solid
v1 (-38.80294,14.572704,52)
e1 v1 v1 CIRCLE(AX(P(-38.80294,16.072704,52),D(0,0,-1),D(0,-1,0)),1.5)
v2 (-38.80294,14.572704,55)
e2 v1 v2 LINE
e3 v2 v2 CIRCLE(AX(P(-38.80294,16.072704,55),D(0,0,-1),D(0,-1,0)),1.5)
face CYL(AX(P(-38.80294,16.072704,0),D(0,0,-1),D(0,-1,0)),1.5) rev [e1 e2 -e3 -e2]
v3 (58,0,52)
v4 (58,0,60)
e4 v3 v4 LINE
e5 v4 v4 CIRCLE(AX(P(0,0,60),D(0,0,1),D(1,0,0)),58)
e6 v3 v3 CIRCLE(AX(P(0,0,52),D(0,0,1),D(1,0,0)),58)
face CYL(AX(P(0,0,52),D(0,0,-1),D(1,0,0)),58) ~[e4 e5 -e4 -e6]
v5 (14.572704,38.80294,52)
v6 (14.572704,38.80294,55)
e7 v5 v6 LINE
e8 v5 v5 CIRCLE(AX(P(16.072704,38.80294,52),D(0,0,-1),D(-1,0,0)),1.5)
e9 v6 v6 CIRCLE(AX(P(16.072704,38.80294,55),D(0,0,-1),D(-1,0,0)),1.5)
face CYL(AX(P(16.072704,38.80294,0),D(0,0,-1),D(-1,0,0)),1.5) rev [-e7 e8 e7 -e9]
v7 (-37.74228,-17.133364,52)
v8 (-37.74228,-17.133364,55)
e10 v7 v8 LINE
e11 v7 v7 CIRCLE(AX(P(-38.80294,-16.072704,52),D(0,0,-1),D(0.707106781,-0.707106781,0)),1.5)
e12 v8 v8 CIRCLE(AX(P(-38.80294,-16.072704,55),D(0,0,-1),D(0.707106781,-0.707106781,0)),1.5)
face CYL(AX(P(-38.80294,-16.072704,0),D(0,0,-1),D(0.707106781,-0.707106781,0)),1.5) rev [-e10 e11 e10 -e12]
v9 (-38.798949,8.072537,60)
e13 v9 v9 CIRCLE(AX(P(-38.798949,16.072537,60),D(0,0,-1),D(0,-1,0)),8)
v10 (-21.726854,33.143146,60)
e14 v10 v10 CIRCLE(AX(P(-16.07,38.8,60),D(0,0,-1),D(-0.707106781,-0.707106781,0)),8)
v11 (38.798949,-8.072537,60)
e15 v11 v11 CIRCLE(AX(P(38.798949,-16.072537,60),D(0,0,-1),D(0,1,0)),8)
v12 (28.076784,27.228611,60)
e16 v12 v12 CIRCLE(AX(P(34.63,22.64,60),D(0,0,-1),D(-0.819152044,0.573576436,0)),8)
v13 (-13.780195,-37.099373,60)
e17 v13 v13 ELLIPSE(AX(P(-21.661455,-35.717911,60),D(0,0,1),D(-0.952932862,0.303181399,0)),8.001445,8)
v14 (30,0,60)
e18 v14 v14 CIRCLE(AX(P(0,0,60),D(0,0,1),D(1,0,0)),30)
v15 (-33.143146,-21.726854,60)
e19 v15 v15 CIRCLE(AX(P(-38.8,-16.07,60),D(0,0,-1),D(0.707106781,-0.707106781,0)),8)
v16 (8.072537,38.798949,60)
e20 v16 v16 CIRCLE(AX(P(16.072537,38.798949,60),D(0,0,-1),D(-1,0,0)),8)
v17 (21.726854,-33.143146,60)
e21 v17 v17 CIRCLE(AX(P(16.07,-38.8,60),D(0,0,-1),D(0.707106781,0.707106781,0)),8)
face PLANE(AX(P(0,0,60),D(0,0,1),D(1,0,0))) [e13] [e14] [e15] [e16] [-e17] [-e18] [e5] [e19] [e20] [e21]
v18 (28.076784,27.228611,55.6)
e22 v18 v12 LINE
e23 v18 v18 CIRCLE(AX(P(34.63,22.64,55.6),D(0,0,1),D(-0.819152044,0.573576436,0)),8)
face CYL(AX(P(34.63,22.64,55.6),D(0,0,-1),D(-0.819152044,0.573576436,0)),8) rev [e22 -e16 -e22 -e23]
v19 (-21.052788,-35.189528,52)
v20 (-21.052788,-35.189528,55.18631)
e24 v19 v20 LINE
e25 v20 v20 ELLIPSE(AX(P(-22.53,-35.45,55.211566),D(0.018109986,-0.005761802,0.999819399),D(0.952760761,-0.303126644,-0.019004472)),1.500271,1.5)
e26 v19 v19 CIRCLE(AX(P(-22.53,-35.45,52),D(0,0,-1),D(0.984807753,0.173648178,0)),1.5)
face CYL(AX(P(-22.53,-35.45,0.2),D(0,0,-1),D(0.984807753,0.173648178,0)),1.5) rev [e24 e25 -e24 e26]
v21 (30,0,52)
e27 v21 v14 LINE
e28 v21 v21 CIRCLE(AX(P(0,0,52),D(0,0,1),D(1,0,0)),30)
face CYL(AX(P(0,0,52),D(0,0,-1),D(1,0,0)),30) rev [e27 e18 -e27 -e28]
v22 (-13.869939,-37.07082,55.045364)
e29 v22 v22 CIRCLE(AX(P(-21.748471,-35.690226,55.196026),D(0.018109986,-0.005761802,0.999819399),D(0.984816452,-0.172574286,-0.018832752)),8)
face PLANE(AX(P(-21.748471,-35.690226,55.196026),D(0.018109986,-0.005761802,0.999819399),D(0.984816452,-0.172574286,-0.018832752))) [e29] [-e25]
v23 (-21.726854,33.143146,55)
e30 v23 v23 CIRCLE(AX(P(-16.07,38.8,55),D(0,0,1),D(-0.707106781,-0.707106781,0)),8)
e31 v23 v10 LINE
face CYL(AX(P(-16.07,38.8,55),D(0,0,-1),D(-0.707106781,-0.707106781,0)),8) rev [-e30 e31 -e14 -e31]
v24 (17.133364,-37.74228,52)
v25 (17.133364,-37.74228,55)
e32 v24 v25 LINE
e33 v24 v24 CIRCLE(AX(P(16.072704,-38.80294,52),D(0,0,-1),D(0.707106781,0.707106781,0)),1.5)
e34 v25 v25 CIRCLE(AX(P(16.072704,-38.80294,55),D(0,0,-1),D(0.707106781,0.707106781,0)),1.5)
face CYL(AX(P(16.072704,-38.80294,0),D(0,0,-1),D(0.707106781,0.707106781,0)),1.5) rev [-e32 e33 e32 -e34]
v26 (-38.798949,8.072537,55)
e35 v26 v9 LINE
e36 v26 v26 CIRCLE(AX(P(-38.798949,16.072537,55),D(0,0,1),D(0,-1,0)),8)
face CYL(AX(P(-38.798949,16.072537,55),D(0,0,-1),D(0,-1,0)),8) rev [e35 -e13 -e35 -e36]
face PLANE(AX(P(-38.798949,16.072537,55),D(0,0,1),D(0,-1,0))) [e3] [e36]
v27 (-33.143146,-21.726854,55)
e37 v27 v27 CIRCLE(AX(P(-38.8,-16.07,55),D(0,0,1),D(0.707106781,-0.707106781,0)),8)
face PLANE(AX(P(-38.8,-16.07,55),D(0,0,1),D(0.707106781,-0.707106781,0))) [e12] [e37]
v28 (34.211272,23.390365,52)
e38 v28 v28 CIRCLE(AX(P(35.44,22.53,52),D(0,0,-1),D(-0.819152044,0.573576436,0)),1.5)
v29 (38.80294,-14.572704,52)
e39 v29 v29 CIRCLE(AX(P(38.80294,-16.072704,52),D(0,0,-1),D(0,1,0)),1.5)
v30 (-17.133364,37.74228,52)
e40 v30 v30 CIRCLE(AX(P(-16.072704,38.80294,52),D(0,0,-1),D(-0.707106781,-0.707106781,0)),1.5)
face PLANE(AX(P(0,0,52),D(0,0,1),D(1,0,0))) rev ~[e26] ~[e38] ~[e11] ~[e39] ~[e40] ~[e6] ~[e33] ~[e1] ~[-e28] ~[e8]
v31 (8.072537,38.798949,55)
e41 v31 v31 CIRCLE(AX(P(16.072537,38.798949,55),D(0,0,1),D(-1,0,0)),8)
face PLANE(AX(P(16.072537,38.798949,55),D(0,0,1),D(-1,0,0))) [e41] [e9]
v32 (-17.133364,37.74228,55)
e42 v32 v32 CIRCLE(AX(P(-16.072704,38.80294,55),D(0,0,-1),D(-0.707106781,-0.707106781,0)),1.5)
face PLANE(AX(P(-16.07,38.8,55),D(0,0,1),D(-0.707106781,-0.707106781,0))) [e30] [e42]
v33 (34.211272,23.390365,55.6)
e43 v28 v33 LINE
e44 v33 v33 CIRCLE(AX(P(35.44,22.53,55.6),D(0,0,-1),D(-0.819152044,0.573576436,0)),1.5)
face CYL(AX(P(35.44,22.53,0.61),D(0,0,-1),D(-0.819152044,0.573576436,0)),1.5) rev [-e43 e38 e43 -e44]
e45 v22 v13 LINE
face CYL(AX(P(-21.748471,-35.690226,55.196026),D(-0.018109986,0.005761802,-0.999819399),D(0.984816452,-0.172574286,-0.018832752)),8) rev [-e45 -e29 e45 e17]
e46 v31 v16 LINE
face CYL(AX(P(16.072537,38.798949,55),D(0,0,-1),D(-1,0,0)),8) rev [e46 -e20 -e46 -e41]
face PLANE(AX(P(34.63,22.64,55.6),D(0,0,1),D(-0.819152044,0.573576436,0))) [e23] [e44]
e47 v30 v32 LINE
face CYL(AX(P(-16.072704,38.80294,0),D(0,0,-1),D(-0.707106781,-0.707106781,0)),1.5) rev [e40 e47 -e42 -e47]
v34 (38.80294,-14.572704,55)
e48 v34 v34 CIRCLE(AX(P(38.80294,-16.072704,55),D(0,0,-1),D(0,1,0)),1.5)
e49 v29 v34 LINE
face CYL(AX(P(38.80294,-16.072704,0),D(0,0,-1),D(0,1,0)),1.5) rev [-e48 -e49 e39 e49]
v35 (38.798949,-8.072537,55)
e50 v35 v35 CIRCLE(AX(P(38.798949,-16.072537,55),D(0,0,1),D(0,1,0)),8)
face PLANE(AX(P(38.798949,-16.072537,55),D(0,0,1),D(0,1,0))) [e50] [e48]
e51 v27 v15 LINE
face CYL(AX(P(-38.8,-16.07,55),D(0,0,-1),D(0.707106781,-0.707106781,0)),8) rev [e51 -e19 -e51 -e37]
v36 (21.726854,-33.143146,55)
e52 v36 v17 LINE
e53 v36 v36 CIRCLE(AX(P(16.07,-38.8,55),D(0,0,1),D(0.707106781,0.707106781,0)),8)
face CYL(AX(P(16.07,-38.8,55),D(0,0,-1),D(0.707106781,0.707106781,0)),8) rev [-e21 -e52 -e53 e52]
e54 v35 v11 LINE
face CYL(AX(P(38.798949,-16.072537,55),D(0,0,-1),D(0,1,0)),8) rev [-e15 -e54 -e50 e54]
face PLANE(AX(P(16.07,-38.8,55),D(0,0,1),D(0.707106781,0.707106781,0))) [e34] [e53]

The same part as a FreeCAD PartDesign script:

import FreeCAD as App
import Part
import Sketcher

V = App.Vector

doc = App.newDocument("Part")
params = doc.addObject("Spreadsheet::Sheet", "Params")
for row, (alias, value) in enumerate([
    ("sketch1_diameter", "3 mm"),
    ("pad1_length", "100 mm"),
    ("sketch2_diameter", "3 mm"),
    ("pad2_length", "100 mm"),
    ("sketch3_diameter", "3 mm"),
    ("pad3_length", "100 mm"),
    ("sketch4_diameter", "3 mm"),
    ("pad4_length", "100 mm"),
    ("sketch5_diameter", "3 mm"),
    ("pad5_length", "100 mm"),
    ("sketch6_diameter", "3 mm"),
    ("pad6_length", "100 mm"),
    ("sketch7_diameter", "3 mm"),
    ("pad7_length", "100 mm"),
    ("sketch8_diameter", "3 mm"),
    ("pad8_length", "100 mm"),
    ("sketch9_diameter", "16 mm"),
    ("pad9_length", "18 mm"),
    ("sketch10_diameter", "16 mm"),
    ("pad10_length", "18 mm"),
    ("sketch11_diameter", "16 mm"),
    ("pad11_length", "18 mm"),
    ("sketch12_diameter", "16 mm"),
    ("pad12_length", "18 mm"),
    ("sketch13_diameter", "16 mm"),
    ("pad13_length", "18 mm"),
    ("sketch14_diameter", "16 mm"),
    ("pad14_length", "18 mm"),
    ("sketch15_diameter", "16 mm"),
    ("pad15_length", "18 mm"),
    ("sketch16_diameter", "16 mm"),
    ("pad16_length", "18 mm"),
    ("sketch17_diameter", "116 mm"),
    ("sketch17_diameter2", "60 mm"),
    ("pad17_length", "8 mm"),
], start=1):
    params.set(f"A{row}", alias)
    params.set(f"B{row}", "=" + value)
    params.setAlias(f"B{row}", alias)

body = doc.addObject("PartDesign::Body", "Body")

sketch1 = body.newObject("Sketcher::SketchObject", "Sketch")
sketch1.AttachmentSupport = (doc.getObject("XY_Plane"), [""])
sketch1.MapMode = "FlatFace"
sketch1.addGeometry(Part.Circle(V(38.80294, -16.072704, 0), V(0, 0, 1), 1.5), False)
sketch1.addConstraint([
    Sketcher.Constraint("Diameter", 0, 3.0),
    Sketcher.Constraint("DistanceX", -1, 1, 0, 3, 38.80294),
    Sketcher.Constraint("DistanceY", 0, 3, -1, 1, 16.072704),
])
sketch1.setExpression("Constraints[0]", "Params.sketch1_diameter")
pad1 = body.newObject("PartDesign::Pad", "Pad")
pad1.Profile = sketch1
pad1.setExpression("Length", "Params.pad1_length")
body2 = doc.addObject("PartDesign::Body", "Body001")

sketch2 = body2.newObject("Sketcher::SketchObject", "Sketch001")
sketch2.AttachmentSupport = (doc.getObject("XY_Plane001"), [""])
sketch2.MapMode = "FlatFace"
sketch2.addGeometry(Part.Circle(V(0, 0, 0), V(0, 0, 1), 1.5), False)
sketch2.addConstraint([
    Sketcher.Constraint("Coincident", 0, 3, -1, 1),
    Sketcher.Constraint("Diameter", 0, 3.0),
])
sketch2.setExpression("Constraints[1]", "Params.sketch2_diameter")
pad2 = body2.newObject("PartDesign::Pad", "Pad001")
pad2.Profile = sketch2
pad2.setExpression("Length", "Params.pad2_length")
body3 = doc.addObject("PartDesign::Body", "Body002")
doc.recompute()

body2.Placement = App.Placement(V(35.44, 22.53, 0.61), App.Rotation(V(0, 0, 1), 145))
boolean = body3.newObject("PartDesign::Boolean", "Boolean")
boolean.Type = "Fuse"
boolean.addObjects([body2])
body4 = doc.addObject("PartDesign::Body", "Body003")

sketch3 = body4.newObject("Sketcher::SketchObject", "Sketch002")
sketch3.AttachmentSupport = (doc.getObject("XY_Plane003"), [""])
sketch3.MapMode = "FlatFace"
sketch3.addGeometry(Part.Circle(V(16.072704, 38.80294, 0), V(0, 0, 1), 1.5), False)
sketch3.addConstraint([
    Sketcher.Constraint("Diameter", 0, 3.0),
    Sketcher.Constraint("DistanceY", -1, 1, 0, 3, 38.80294),
    Sketcher.Constraint("DistanceX", -1, 1, 0, 3, 16.072704),
])
sketch3.setExpression("Constraints[0]", "Params.sketch3_diameter")
pad3 = body4.newObject("PartDesign::Pad", "Pad002")
pad3.Profile = sketch3
pad3.setExpression("Length", "Params.pad3_length")
body5 = doc.addObject("PartDesign::Body", "Body004")

sketch4 = body5.newObject("Sketcher::SketchObject", "Sketch003")
sketch4.AttachmentSupport = (doc.getObject("XY_Plane004"), [""])
sketch4.MapMode = "FlatFace"
sketch4.addGeometry(Part.Circle(V(0, 0, 0), V(0, 0, 1), 1.5), False)
sketch4.addConstraint([
    Sketcher.Constraint("Coincident", 0, 3, -1, 1),
    Sketcher.Constraint("Diameter", 0, 3.0),
])
sketch4.setExpression("Constraints[1]", "Params.sketch4_diameter")
pad4 = body5.newObject("PartDesign::Pad", "Pad003")
pad4.Profile = sketch4
pad4.setExpression("Length", "Params.pad4_length")
body6 = doc.addObject("PartDesign::Body", "Body005")
doc.recompute()

body5.Placement = App.Placement(V(-16.072704, 38.80294, 0), App.Rotation(V(0, 0, 1), 225))
boolean2 = body6.newObject("PartDesign::Boolean", "Boolean001")
boolean2.Type = "Fuse"
boolean2.addObjects([body5])
body7 = doc.addObject("PartDesign::Body", "Body006")

sketch5 = body7.newObject("Sketcher::SketchObject", "Sketch004")
sketch5.AttachmentSupport = (doc.getObject("XY_Plane006"), [""])
sketch5.MapMode = "FlatFace"
sketch5.addGeometry(Part.Circle(V(-38.80294, 16.072704, 0), V(0, 0, 1), 1.5), False)
sketch5.addConstraint([
    Sketcher.Constraint("Diameter", 0, 3.0),
    Sketcher.Constraint("DistanceX", 0, 3, -1, 1, 38.80294),
    Sketcher.Constraint("DistanceY", -1, 1, 0, 3, 16.072704),
])
sketch5.setExpression("Constraints[0]", "Params.sketch5_diameter")
pad5 = body7.newObject("PartDesign::Pad", "Pad004")
pad5.Profile = sketch5
pad5.setExpression("Length", "Params.pad5_length")
body8 = doc.addObject("PartDesign::Body", "Body007")

sketch6 = body8.newObject("Sketcher::SketchObject", "Sketch005")
sketch6.AttachmentSupport = (doc.getObject("XY_Plane007"), [""])
sketch6.MapMode = "FlatFace"
sketch6.addGeometry(Part.Circle(V(0, 0, 0), V(0, 0, 1), 1.5), False)
sketch6.addConstraint([
    Sketcher.Constraint("Coincident", 0, 3, -1, 1),
    Sketcher.Constraint("Diameter", 0, 3.0),
])
sketch6.setExpression("Constraints[1]", "Params.sketch6_diameter")
pad6 = body8.newObject("PartDesign::Pad", "Pad005")
pad6.Profile = sketch6
pad6.setExpression("Length", "Params.pad6_length")
body9 = doc.addObject("PartDesign::Body", "Body008")
doc.recompute()

body8.Placement = App.Placement(V(-38.80294, -16.072704, 0), App.Rotation(V(0, 0, -1), 45))
boolean3 = body9.newObject("PartDesign::Boolean", "Boolean002")
boolean3.Type = "Fuse"
boolean3.addObjects([body8])
body10 = doc.addObject("PartDesign::Body", "Body009")

sketch7 = body10.newObject("Sketcher::SketchObject", "Sketch006")
sketch7.AttachmentSupport = (doc.getObject("XY_Plane009"), [""])
sketch7.MapMode = "FlatFace"
sketch7.addGeometry(Part.Circle(V(0, 0, 0), V(0, 0, 1), 1.5), False)
sketch7.addConstraint([
    Sketcher.Constraint("Coincident", 0, 3, -1, 1),
    Sketcher.Constraint("Diameter", 0, 3.0),
])
sketch7.setExpression("Constraints[1]", "Params.sketch7_diameter")
pad7 = body10.newObject("PartDesign::Pad", "Pad006")
pad7.Profile = sketch7
pad7.setExpression("Length", "Params.pad7_length")
body11 = doc.addObject("PartDesign::Body", "Body010")
doc.recompute()

body10.Placement = App.Placement(V(-22.53, -35.45, 0.2), App.Rotation(V(0, 0, 1), 10))
boolean4 = body11.newObject("PartDesign::Boolean", "Boolean003")
boolean4.Type = "Fuse"
boolean4.addObjects([body10])
body12 = doc.addObject("PartDesign::Body", "Body011")

sketch8 = body12.newObject("Sketcher::SketchObject", "Sketch007")
sketch8.AttachmentSupport = (doc.getObject("XY_Plane011"), [""])
sketch8.MapMode = "FlatFace"
sketch8.addGeometry(Part.Circle(V(0, 0, 0), V(0, 0, 1), 1.5), False)
sketch8.addConstraint([
    Sketcher.Constraint("Coincident", 0, 3, -1, 1),
    Sketcher.Constraint("Diameter", 0, 3.0),
])
sketch8.setExpression("Constraints[1]", "Params.sketch8_diameter")
pad8 = body12.newObject("PartDesign::Pad", "Pad007")
pad8.Profile = sketch8
pad8.setExpression("Length", "Params.pad8_length")
body13 = doc.addObject("PartDesign::Body", "Body012")
body13.AllowCompound = True
doc.recompute()

body12.Placement = App.Placement(V(16.072704, -38.80294, 0), App.Rotation(V(0, 0, 1), 45))
boolean5 = body13.newObject("PartDesign::Boolean", "Boolean004")
boolean5.Type = "Fuse"
boolean5.addObjects([body12])
doc.recompute()

boolean6 = body13.newObject("PartDesign::Boolean", "Boolean005")
boolean6.Type = "Fuse"
boolean6.addObjects([body])
doc.recompute()

boolean7 = body13.newObject("PartDesign::Boolean", "Boolean006")
boolean7.Type = "Fuse"
boolean7.addObjects([body3])
doc.recompute()

boolean8 = body13.newObject("PartDesign::Boolean", "Boolean007")
boolean8.Type = "Fuse"
boolean8.addObjects([body4])
doc.recompute()

boolean9 = body13.newObject("PartDesign::Boolean", "Boolean008")
boolean9.Type = "Fuse"
boolean9.addObjects([body6])
doc.recompute()

boolean10 = body13.newObject("PartDesign::Boolean", "Boolean009")
boolean10.Type = "Fuse"
boolean10.addObjects([body7])
doc.recompute()

boolean11 = body13.newObject("PartDesign::Boolean", "Boolean010")
boolean11.Type = "Fuse"
boolean11.addObjects([body9])
doc.recompute()

boolean12 = body13.newObject("PartDesign::Boolean", "Boolean011")
boolean12.Type = "Fuse"
boolean12.addObjects([body11])
body14 = doc.addObject("PartDesign::Body", "Body013")

sketch9 = body14.newObject("Sketcher::SketchObject", "Sketch008")
sketch9.AttachmentSupport = (doc.getObject("XY_Plane013"), [""])
sketch9.MapMode = "FlatFace"
sketch9.AttachmentOffset = App.Placement(V(0, 0, 43), App.Rotation())
sketch9.addGeometry(Part.Circle(V(-38.798949, 16.072537, 0), V(0, 0, 1), 8), False)
sketch9.addConstraint([
    Sketcher.Constraint("Diameter", 0, 16.0),
    Sketcher.Constraint("DistanceX", 0, 3, -1, 1, 38.798949),
    Sketcher.Constraint("DistanceY", -1, 1, 0, 3, 16.072537),
])
sketch9.setExpression("Constraints[0]", "Params.sketch9_diameter")
pad9 = body14.newObject("PartDesign::Pad", "Pad008")
pad9.Profile = sketch9
pad9.setExpression("Length", "Params.pad9_length")
body15 = doc.addObject("PartDesign::Body", "Body014")

sketch10 = body15.newObject("Sketcher::SketchObject", "Sketch009")
sketch10.AttachmentSupport = (doc.getObject("XY_Plane014"), [""])
sketch10.MapMode = "FlatFace"
sketch10.addGeometry(Part.Circle(V(0, 0, 0), V(0, 0, 1), 8), False)
sketch10.addConstraint([
    Sketcher.Constraint("Coincident", 0, 3, -1, 1),
    Sketcher.Constraint("Diameter", 0, 16.0),
])
sketch10.setExpression("Constraints[1]", "Params.sketch10_diameter")
pad10 = body15.newObject("PartDesign::Pad", "Pad009")
pad10.Profile = sketch10
pad10.setExpression("Length", "Params.pad10_length")
body16 = doc.addObject("PartDesign::Body", "Body015")
doc.recompute()

body15.Placement = App.Placement(V(-16.07, 38.8, 43), App.Rotation(V(0, 0, 1), 225))
boolean13 = body16.newObject("PartDesign::Boolean", "Boolean012")
boolean13.Type = "Fuse"
boolean13.addObjects([body15])
body17 = doc.addObject("PartDesign::Body", "Body016")

sketch11 = body17.newObject("Sketcher::SketchObject", "Sketch010")
sketch11.AttachmentSupport = (doc.getObject("XY_Plane016"), [""])
sketch11.MapMode = "FlatFace"
sketch11.AttachmentOffset = App.Placement(V(0, 0, 43), App.Rotation())
sketch11.addGeometry(Part.Circle(V(16.072537, 38.798949, 0), V(0, 0, 1), 8), False)
sketch11.addConstraint([
    Sketcher.Constraint("Diameter", 0, 16.0),
    Sketcher.Constraint("DistanceY", -1, 1, 0, 3, 38.798949),
    Sketcher.Constraint("DistanceX", -1, 1, 0, 3, 16.072537),
])
sketch11.setExpression("Constraints[0]", "Params.sketch11_diameter")
pad11 = body17.newObject("PartDesign::Pad", "Pad010")
pad11.Profile = sketch11
pad11.setExpression("Length", "Params.pad11_length")
body18 = doc.addObject("PartDesign::Body", "Body017")

sketch12 = body18.newObject("Sketcher::SketchObject", "Sketch011")
sketch12.AttachmentSupport = (doc.getObject("XY_Plane017"), [""])
sketch12.MapMode = "FlatFace"
sketch12.addGeometry(Part.Circle(V(0, 0, 0), V(0, 0, 1), 8), False)
sketch12.addConstraint([
    Sketcher.Constraint("Coincident", 0, 3, -1, 1),
    Sketcher.Constraint("Diameter", 0, 16.0),
])
sketch12.setExpression("Constraints[1]", "Params.sketch12_diameter")
pad12 = body18.newObject("PartDesign::Pad", "Pad011")
pad12.Profile = sketch12
pad12.setExpression("Length", "Params.pad12_length")
body19 = doc.addObject("PartDesign::Body", "Body018")
doc.recompute()

body18.Placement = App.Placement(V(34.63, 22.64, 43.6), App.Rotation(V(0, 0, 1), 145))
boolean14 = body19.newObject("PartDesign::Boolean", "Boolean013")
boolean14.Type = "Fuse"
boolean14.addObjects([body18])
body20 = doc.addObject("PartDesign::Body", "Body019")

sketch13 = body20.newObject("Sketcher::SketchObject", "Sketch012")
sketch13.AttachmentSupport = (doc.getObject("XY_Plane019"), [""])
sketch13.MapMode = "FlatFace"
sketch13.AttachmentOffset = App.Placement(V(0, 0, 43), App.Rotation())
sketch13.addGeometry(Part.Circle(V(38.798949, -16.072537, 0), V(0, 0, 1), 8), False)
sketch13.addConstraint([
    Sketcher.Constraint("Diameter", 0, 16.0),
    Sketcher.Constraint("DistanceX", -1, 1, 0, 3, 38.798949),
    Sketcher.Constraint("DistanceY", 0, 3, -1, 1, 16.072537),
])
sketch13.setExpression("Constraints[0]", "Params.sketch13_diameter")
pad13 = body20.newObject("PartDesign::Pad", "Pad012")
pad13.Profile = sketch13
pad13.setExpression("Length", "Params.pad13_length")
body21 = doc.addObject("PartDesign::Body", "Body020")

sketch14 = body21.newObject("Sketcher::SketchObject", "Sketch013")
sketch14.AttachmentSupport = (doc.getObject("XY_Plane020"), [""])
sketch14.MapMode = "FlatFace"
sketch14.addGeometry(Part.Circle(V(0, 0, 0), V(0, 0, 1), 8), False)
sketch14.addConstraint([
    Sketcher.Constraint("Coincident", 0, 3, -1, 1),
    Sketcher.Constraint("Diameter", 0, 16.0),
])
sketch14.setExpression("Constraints[1]", "Params.sketch14_diameter")
pad14 = body21.newObject("PartDesign::Pad", "Pad013")
pad14.Profile = sketch14
pad14.setExpression("Length", "Params.pad14_length")
body22 = doc.addObject("PartDesign::Body", "Body021")
doc.recompute()

body21.Placement = App.Placement(V(16.07, -38.8, 43), App.Rotation(V(0, 0, 1), 45))
boolean15 = body22.newObject("PartDesign::Boolean", "Boolean014")
boolean15.Type = "Fuse"
boolean15.addObjects([body21])
body23 = doc.addObject("PartDesign::Body", "Body022")

sketch15 = body23.newObject("Sketcher::SketchObject", "Sketch014")
sketch15.AttachmentSupport = (doc.getObject("XY_Plane022"), [""])
sketch15.MapMode = "FlatFace"
sketch15.addGeometry(Part.Circle(V(0, 0, 0), V(0, 0, 1), 8), False)
sketch15.addConstraint([
    Sketcher.Constraint("Coincident", 0, 3, -1, 1),
    Sketcher.Constraint("Diameter", 0, 16.0),
])
sketch15.setExpression("Constraints[1]", "Params.sketch15_diameter")
pad15 = body23.newObject("PartDesign::Pad", "Pad014")
pad15.Profile = sketch15
pad15.setExpression("Length", "Params.pad15_length")
body24 = doc.addObject("PartDesign::Body", "Body023")
doc.recompute()

body23.Placement = App.Placement(V(0, 0, 0), App.Rotation(V(1, 0, 0), 0.146073))
boolean16 = body24.newObject("PartDesign::Boolean", "Boolean015")
boolean16.Type = "Fuse"
boolean16.addObjects([body23])
body25 = doc.addObject("PartDesign::Body", "Body024")
doc.recompute()

body24.Placement = App.Placement(V(0, 0, 0), App.Rotation(V(0, 1, 0), 1.079101))
boolean17 = body25.newObject("PartDesign::Boolean", "Boolean016")
boolean17.Type = "Fuse"
boolean17.addObjects([body24])
body26 = doc.addObject("PartDesign::Body", "Body025")
doc.recompute()

body25.Placement = App.Placement(V(-21.748471, -35.690226, 43.196026), App.Rotation(V(0, 0, 1), 350.060692))
boolean18 = body26.newObject("PartDesign::Boolean", "Boolean017")
boolean18.Type = "Fuse"
boolean18.addObjects([body25])
body27 = doc.addObject("PartDesign::Body", "Body026")

sketch16 = body27.newObject("Sketcher::SketchObject", "Sketch015")
sketch16.AttachmentSupport = (doc.getObject("XY_Plane026"), [""])
sketch16.MapMode = "FlatFace"
sketch16.addGeometry(Part.Circle(V(0, 0, 0), V(0, 0, 1), 8), False)
sketch16.addConstraint([
    Sketcher.Constraint("Coincident", 0, 3, -1, 1),
    Sketcher.Constraint("Diameter", 0, 16.0),
])
sketch16.setExpression("Constraints[1]", "Params.sketch16_diameter")
pad16 = body27.newObject("PartDesign::Pad", "Pad015")
pad16.Profile = sketch16
pad16.setExpression("Length", "Params.pad16_length")
body28 = doc.addObject("PartDesign::Body", "Body027")
body28.AllowCompound = True
doc.recompute()

body27.Placement = App.Placement(V(-38.8, -16.07, 43), App.Rotation(V(0, 0, -1), 45))
boolean19 = body28.newObject("PartDesign::Boolean", "Boolean018")
boolean19.Type = "Fuse"
boolean19.addObjects([body27])
doc.recompute()

boolean20 = body28.newObject("PartDesign::Boolean", "Boolean019")
boolean20.Type = "Fuse"
boolean20.addObjects([body14])
doc.recompute()

boolean21 = body28.newObject("PartDesign::Boolean", "Boolean020")
boolean21.Type = "Fuse"
boolean21.addObjects([body16])
doc.recompute()

boolean22 = body28.newObject("PartDesign::Boolean", "Boolean021")
boolean22.Type = "Fuse"
boolean22.addObjects([body17])
doc.recompute()

boolean23 = body28.newObject("PartDesign::Boolean", "Boolean022")
boolean23.Type = "Fuse"
boolean23.addObjects([body19])
doc.recompute()

boolean24 = body28.newObject("PartDesign::Boolean", "Boolean023")
boolean24.Type = "Fuse"
boolean24.addObjects([body20])
doc.recompute()

boolean25 = body28.newObject("PartDesign::Boolean", "Boolean024")
boolean25.Type = "Fuse"
boolean25.addObjects([body22])
doc.recompute()

boolean26 = body28.newObject("PartDesign::Boolean", "Boolean025")
boolean26.Type = "Fuse"
boolean26.addObjects([body26])
body29 = doc.addObject("PartDesign::Body", "Body028")
body29.AllowCompound = True
doc.recompute()

body28.Placement = App.Placement(V(0, 0, 12), App.Rotation(V(0, 0, 1), 0))
boolean27 = body29.newObject("PartDesign::Boolean", "Boolean026")
boolean27.Type = "Fuse"
boolean27.addObjects([body28])
body30 = doc.addObject("PartDesign::Body", "Body029")

sketch17 = body30.newObject("Sketcher::SketchObject", "Sketch016")
sketch17.AttachmentSupport = (doc.getObject("XY_Plane029"), [""])
sketch17.MapMode = "FlatFace"
sketch17.AttachmentOffset = App.Placement(V(0, 0, 52), App.Rotation())
sketch17.addGeometry([
    Part.Circle(V(0, 0, 0), V(0, 0, 1), 58),
    Part.Circle(V(0, 0, 0), V(0, 0, 1), 30),
], False)
sketch17.addConstraint([
    Sketcher.Constraint("Coincident", 0, 3, -1, 1),
    Sketcher.Constraint("Coincident", 1, 3, -1, 1),
    Sketcher.Constraint("Diameter", 0, 116.0),
    Sketcher.Constraint("Diameter", 1, 60.0),
])
sketch17.setExpression("Constraints[2]", "Params.sketch17_diameter")
sketch17.setExpression("Constraints[3]", "Params.sketch17_diameter2")
pad17 = body30.newObject("PartDesign::Pad", "Pad016")
pad17.Profile = sketch17
pad17.setExpression("Length", "Params.pad17_length")
doc.recompute()

boolean28 = body30.newObject("PartDesign::Boolean", "Boolean027")
boolean28.Type = "Cut"
boolean28.addObjects([body29])
doc.recompute()

boolean29 = body30.newObject("PartDesign::Boolean", "Boolean028")
boolean29.Type = "Cut"
boolean29.addObjects([body13])

doc.recompute()
